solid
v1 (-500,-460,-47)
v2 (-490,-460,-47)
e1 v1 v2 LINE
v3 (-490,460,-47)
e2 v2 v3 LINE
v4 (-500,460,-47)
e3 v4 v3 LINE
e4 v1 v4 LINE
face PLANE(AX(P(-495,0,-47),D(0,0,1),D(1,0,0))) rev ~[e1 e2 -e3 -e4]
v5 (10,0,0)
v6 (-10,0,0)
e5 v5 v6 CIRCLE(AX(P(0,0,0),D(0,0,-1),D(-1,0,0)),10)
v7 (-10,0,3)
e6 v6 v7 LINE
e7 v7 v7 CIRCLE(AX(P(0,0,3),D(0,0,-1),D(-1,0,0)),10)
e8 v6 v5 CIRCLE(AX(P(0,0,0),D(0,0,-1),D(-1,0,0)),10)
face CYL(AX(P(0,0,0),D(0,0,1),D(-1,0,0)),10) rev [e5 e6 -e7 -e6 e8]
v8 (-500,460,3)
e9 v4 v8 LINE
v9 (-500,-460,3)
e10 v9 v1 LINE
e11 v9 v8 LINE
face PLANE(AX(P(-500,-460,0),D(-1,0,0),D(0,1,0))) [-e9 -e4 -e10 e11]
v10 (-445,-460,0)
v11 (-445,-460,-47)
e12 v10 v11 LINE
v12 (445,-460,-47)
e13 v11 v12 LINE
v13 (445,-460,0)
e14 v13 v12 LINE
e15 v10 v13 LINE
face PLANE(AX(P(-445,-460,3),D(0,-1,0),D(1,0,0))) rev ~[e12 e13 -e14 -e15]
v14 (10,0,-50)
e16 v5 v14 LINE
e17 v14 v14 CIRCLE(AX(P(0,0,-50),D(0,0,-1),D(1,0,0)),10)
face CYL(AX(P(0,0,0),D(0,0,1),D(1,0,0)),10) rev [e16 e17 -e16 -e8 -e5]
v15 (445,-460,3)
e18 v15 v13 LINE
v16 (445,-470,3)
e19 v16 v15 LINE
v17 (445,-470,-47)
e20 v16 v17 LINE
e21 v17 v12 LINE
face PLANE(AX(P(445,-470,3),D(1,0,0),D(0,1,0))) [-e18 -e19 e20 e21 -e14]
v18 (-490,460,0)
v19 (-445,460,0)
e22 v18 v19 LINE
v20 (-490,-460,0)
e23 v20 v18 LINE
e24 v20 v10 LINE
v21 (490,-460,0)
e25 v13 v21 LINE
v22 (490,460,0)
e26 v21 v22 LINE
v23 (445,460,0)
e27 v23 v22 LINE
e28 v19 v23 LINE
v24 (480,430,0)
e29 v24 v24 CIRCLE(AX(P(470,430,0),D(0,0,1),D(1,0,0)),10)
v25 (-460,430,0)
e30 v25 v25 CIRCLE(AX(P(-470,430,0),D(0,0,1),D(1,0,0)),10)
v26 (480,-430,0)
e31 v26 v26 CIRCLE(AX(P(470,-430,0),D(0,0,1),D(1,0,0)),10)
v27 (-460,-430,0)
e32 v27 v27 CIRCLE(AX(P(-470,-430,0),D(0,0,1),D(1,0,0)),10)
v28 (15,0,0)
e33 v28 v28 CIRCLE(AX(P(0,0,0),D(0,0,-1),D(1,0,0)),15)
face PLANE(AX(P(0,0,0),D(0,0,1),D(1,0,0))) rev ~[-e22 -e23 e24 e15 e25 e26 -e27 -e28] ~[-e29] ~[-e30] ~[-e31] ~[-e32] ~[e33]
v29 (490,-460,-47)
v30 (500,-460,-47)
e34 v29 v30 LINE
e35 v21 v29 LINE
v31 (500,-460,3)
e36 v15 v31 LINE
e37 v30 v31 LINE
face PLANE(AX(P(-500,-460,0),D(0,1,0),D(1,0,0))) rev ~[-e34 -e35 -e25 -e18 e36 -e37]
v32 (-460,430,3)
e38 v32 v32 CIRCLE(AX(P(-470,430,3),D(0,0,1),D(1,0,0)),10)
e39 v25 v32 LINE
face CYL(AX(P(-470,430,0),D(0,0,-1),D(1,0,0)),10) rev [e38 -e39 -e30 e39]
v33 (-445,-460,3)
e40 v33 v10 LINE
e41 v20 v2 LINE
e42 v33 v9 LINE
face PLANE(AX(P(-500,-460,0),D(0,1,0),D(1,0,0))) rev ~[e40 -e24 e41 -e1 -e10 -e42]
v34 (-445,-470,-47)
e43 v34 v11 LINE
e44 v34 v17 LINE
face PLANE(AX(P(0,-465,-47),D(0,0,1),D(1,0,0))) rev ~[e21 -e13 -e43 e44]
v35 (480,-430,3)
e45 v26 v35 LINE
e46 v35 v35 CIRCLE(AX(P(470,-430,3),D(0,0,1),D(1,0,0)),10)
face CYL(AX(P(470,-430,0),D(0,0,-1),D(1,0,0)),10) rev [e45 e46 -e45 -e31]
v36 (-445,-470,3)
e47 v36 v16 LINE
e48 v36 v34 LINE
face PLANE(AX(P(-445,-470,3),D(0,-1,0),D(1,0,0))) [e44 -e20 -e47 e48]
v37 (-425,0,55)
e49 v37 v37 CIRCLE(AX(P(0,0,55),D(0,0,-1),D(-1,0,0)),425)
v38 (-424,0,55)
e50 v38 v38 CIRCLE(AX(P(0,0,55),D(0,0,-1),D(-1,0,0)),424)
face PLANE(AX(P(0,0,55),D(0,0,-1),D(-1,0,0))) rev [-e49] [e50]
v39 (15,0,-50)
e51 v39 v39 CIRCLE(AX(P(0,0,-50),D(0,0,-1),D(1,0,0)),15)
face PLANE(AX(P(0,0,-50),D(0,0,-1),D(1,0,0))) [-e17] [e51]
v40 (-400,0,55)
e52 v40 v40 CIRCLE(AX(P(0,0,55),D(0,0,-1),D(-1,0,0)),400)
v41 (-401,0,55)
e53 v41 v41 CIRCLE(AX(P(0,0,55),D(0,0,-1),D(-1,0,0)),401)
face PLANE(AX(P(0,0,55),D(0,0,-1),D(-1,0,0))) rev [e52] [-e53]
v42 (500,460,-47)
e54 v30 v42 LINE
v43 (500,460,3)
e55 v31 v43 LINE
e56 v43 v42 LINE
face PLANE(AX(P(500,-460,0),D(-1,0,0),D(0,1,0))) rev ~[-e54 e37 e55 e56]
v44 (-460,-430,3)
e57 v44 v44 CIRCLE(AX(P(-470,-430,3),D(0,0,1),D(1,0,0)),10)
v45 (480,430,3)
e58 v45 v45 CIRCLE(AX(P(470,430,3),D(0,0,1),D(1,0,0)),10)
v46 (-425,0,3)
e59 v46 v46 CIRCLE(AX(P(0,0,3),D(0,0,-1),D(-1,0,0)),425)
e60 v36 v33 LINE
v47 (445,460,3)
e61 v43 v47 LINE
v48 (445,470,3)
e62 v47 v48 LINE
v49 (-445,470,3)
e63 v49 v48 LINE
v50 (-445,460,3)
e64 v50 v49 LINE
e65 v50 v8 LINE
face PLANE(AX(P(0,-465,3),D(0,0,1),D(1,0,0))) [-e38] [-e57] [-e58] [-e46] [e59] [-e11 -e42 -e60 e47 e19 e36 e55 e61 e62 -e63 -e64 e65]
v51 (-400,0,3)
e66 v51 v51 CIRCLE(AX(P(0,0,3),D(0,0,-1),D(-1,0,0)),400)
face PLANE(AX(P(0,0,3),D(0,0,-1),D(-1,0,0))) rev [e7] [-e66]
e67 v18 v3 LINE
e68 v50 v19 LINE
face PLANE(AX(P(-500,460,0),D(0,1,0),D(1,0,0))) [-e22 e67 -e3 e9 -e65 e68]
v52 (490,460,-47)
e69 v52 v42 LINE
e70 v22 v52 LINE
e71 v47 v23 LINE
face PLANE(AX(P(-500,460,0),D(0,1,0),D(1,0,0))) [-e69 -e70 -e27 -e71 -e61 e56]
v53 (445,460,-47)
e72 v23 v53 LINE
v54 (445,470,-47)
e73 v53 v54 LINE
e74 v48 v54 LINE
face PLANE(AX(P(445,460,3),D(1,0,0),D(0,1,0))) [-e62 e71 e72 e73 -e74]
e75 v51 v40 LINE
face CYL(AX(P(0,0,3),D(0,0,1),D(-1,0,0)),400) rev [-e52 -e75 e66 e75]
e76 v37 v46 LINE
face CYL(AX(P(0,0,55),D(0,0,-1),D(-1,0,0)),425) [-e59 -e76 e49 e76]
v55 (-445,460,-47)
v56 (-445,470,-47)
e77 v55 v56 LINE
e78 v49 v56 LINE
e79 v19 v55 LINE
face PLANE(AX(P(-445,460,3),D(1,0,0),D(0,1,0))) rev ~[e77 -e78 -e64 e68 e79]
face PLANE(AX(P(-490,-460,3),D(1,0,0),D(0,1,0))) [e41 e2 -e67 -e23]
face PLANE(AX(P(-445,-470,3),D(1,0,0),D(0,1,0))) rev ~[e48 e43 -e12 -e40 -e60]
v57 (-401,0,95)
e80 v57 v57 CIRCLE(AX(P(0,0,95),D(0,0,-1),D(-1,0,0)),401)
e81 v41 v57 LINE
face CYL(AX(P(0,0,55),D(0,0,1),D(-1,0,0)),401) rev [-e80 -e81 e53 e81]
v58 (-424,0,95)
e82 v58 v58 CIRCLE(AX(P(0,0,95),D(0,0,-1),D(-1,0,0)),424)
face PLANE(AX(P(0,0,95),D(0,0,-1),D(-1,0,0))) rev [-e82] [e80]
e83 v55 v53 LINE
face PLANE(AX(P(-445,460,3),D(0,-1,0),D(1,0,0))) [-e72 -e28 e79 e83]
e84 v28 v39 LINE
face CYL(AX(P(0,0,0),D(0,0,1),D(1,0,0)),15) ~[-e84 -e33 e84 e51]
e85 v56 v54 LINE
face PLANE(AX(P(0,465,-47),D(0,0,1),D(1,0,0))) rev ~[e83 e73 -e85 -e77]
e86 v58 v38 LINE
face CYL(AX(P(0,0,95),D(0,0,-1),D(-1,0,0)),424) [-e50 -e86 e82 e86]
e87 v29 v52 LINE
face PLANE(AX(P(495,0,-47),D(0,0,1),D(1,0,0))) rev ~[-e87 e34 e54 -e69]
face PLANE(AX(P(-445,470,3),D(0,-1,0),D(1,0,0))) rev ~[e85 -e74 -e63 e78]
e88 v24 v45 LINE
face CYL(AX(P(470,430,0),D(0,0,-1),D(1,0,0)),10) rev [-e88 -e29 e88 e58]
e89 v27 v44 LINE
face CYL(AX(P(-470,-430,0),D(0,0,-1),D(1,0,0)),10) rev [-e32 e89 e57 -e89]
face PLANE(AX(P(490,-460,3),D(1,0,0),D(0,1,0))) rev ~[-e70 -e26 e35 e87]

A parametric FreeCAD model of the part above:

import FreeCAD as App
import Part
import Sketcher
Q = App.Units.Quantity

doc = App.newDocument("Part")
body = doc.addObject("PartDesign::Body", "Body")

sketch1 = doc.addObject("Sketcher::SketchObject", "Sketch")
body.addObject(sketch1)
sketch1.AttachmentSupport = (doc.XZ_Plane, [""])
sketch1.MapMode = "FlatFace"
sketch1.addGeometry(Part.LineSegment(App.Vector(-400, 3, 0), App.Vector(-400, 55, 0)), False)
sketch1.addGeometry(Part.LineSegment(App.Vector(-400, 55, 0), App.Vector(-401, 55, 0)), False)
sketch1.addGeometry(Part.LineSegment(App.Vector(-401, 55, 0), App.Vector(-401, 95, 0)), False)
sketch1.addGeometry(Part.LineSegment(App.Vector(-401, 95, 0), App.Vector(-424, 95, 0)), False)
sketch1.addGeometry(Part.LineSegment(App.Vector(-424, 95, 0), App.Vector(-424, 55, 0)), False)
sketch1.addGeometry(Part.LineSegment(App.Vector(-424, 55, 0), App.Vector(-425, 55, 0)), False)
sketch1.addGeometry(Part.LineSegment(App.Vector(-425, 55, 0), App.Vector(-425, 0, 0)), False)
sketch1.addGeometry(Part.LineSegment(App.Vector(-425, 0, 0), App.Vector(-10, 0, 0)), False)
sketch1.addGeometry(Part.LineSegment(App.Vector(-10, 0, 0), App.Vector(-10, 3, 0)), False)
sketch1.addGeometry(Part.LineSegment(App.Vector(-10, 3, 0), App.Vector(-400, 3, 0)), False)
sketch1.addConstraint(Sketcher.Constraint("Coincident", 0, 2, 1, 1))
sketch1.addConstraint(Sketcher.Constraint("Coincident", 1, 2, 2, 1))
sketch1.addConstraint(Sketcher.Constraint("Coincident", 2, 2, 3, 1))
sketch1.addConstraint(Sketcher.Constraint("Coincident", 3, 2, 4, 1))
sketch1.addConstraint(Sketcher.Constraint("Coincident", 4, 2, 5, 1))
sketch1.addConstraint(Sketcher.Constraint("Coincident", 5, 2, 6, 1))
sketch1.addConstraint(Sketcher.Constraint("Coincident", 6, 2, 7, 1))
sketch1.addConstraint(Sketcher.Constraint("Coincident", 7, 2, 8, 1))
sketch1.addConstraint(Sketcher.Constraint("Coincident", 8, 2, 9, 1))
sketch1.addConstraint(Sketcher.Constraint("Coincident", 9, 2, 0, 1))
sketch1.addConstraint(Sketcher.Constraint("Vertical", 0))
sketch1.addConstraint(Sketcher.Constraint("Horizontal", 1))
sketch1.addConstraint(Sketcher.Constraint("Vertical", 2))
sketch1.addConstraint(Sketcher.Constraint("Horizontal", 3))
sketch1.addConstraint(Sketcher.Constraint("Vertical", 4))
sketch1.addConstraint(Sketcher.Constraint("Horizontal", 5))
sketch1.addConstraint(Sketcher.Constraint("Vertical", 6))
sketch1.addConstraint(Sketcher.Constraint("Horizontal", 7))
sketch1.addConstraint(Sketcher.Constraint("Vertical", 8))
sketch1.addConstraint(Sketcher.Constraint("Horizontal", 9))
sketch1.addConstraint(Sketcher.Constraint("PointOnObject", 6, 2, -1))
sketch1.addConstraint(Sketcher.Constraint("Horizontal", 1, 2, 4, 2))
sketch1.addConstraint(Sketcher.Constraint("Equal", 1, 5))
sketch1.addConstraint(Sketcher.Constraint("DistanceX", 1, 2, 1, 1, Q("1 mm")))
sketch1.addConstraint(Sketcher.Constraint("DistanceX", 3, 2, 3, 1, Q("23 mm")))
sketch1.addConstraint(Sketcher.Constraint("DistanceX", 7, 1, 7, 2, Q("415 mm")))
sketch1.addConstraint(Sketcher.Constraint("DistanceY", 0, 1, 0, 2, Q("52 mm")))
sketch1.addConstraint(Sketcher.Constraint("DistanceY", 2, 1, 2, 2, Q("40 mm")))
sketch1.addConstraint(Sketcher.Constraint("DistanceY", 6, 2, 6, 1, Q("55 mm")))
sketch1.addConstraint(Sketcher.Constraint("DistanceX", 0, 2, -1, 1, Q("400 mm")))
revolution = doc.addObject("PartDesign::Revolution", "Revolution")
body.addObject(revolution)
revolution.Profile = sketch1
revolution.ReferenceAxis = (sketch1, ["V_Axis"])
revolution.Angle = 360

sketch2 = doc.addObject("Sketcher::SketchObject", "Sketch001")
body.addObject(sketch2)
sketch2.AttachmentSupport = (doc.XY_Plane, [""])
sketch2.MapMode = "FlatFace"
sketch2.addGeometry(Part.LineSegment(App.Vector(-500, 460, 0), App.Vector(-500, -460, 0)), False)
sketch2.addGeometry(Part.LineSegment(App.Vector(-500, -460, 0), App.Vector(500, -460, 0)), False)
sketch2.addGeometry(Part.LineSegment(App.Vector(500, -460, 0), App.Vector(500, 460, 0)), False)
sketch2.addGeometry(Part.LineSegment(App.Vector(500, 460, 0), App.Vector(-500, 460, 0)), False)
sketch2.addGeometry(Part.Circle(App.Vector(-470, -430, 0), App.Vector(0, 0, 1), 10), False)
sketch2.addGeometry(Part.Circle(App.Vector(470, -430, 0), App.Vector(0, 0, 1), 10), False)
sketch2.addGeometry(Part.Circle(App.Vector(-470, 430, 0), App.Vector(0, 0, 1), 10), False)
sketch2.addGeometry(Part.Circle(App.Vector(0, 0, 0), App.Vector(0, 0, 1), 401), False)
sketch2.addGeometry(Part.Circle(App.Vector(470, 430, 0), App.Vector(0, 0, 1), 10), False)
sketch2.addConstraint(Sketcher.Constraint("Coincident", 0, 2, 1, 1))
sketch2.addConstraint(Sketcher.Constraint("Coincident", 1, 2, 2, 1))
sketch2.addConstraint(Sketcher.Constraint("Coincident", 2, 2, 3, 1))
sketch2.addConstraint(Sketcher.Constraint("Coincident", 3, 2, 0, 1))
sketch2.addConstraint(Sketcher.Constraint("Vertical", 0))
sketch2.addConstraint(Sketcher.Constraint("Horizontal", 1))
sketch2.addConstraint(Sketcher.Constraint("Vertical", 2))
sketch2.addConstraint(Sketcher.Constraint("Horizontal", 3))
sketch2.addConstraint(Sketcher.Constraint("Coincident", 7, 3, -1, 1))
sketch2.addConstraint(Sketcher.Constraint("Equal", 4, 5))
sketch2.addConstraint(Sketcher.Constraint("Equal", 5, 6))
sketch2.addConstraint(Sketcher.Constraint("Equal", 6, 8))
sketch2.addConstraint(Sketcher.Constraint("Symmetric", 5, 3, 6, 3, -1, 1))
sketch2.addConstraint(Sketcher.Constraint("Symmetric", 4, 3, 8, 3, -1, 1))
sketch2.addConstraint(Sketcher.Constraint("Symmetric", 0, 2, 2, 2, -1, 1))
sketch2.addConstraint(Sketcher.Constraint("Symmetric", 4, 3, 5, 3, -2))
sketch2.addConstraint(Sketcher.Constraint("Diameter", 4, Q("20 mm")))
sketch2.addConstraint(Sketcher.Constraint("Diameter", 7, Q("802 mm")))
sketch2.addConstraint(Sketcher.Constraint("DistanceX", 1, 1, 1, 2, Q("1000 mm")))
sketch2.addConstraint(Sketcher.Constraint("DistanceY", 0, 2, 0, 1, Q("920 mm")))
sketch2.addConstraint(Sketcher.Constraint("DistanceX", 4, 3, -1, 1, Q("470 mm")))
sketch2.addConstraint(Sketcher.Constraint("DistanceY", 4, 3, -1, 1, Q("430 mm")))
pad1 = doc.addObject("PartDesign::Pad", "Pad")
body.addObject(pad1)
pad1.Profile = sketch2
pad1.Length = 3

sketch3 = doc.addObject("Sketcher::SketchObject", "Sketch002")
body.addObject(sketch3)
sketch3.AttachmentSupport = (doc.XY_Plane, [""])
sketch3.MapMode = "FlatFace"
sketch3.AttachmentOffset = App.Placement(App.Vector(0, 0, 3), App.Rotation())
sketch3.addGeometry(Part.LineSegment(App.Vector(-445, -460, 0), App.Vector(-445, -470, 0)), False)
sketch3.addGeometry(Part.LineSegment(App.Vector(-445, -470, 0), App.Vector(445, -470, 0)), False)
sketch3.addGeometry(Part.LineSegment(App.Vector(445, -470, 0), App.Vector(445, -460, 0)), False)
sketch3.addGeometry(Part.LineSegment(App.Vector(445, -460, 0), App.Vector(-445, -460, 0)), False)
sketch3.addGeometry(Part.LineSegment(App.Vector(-500, 460, 0), App.Vector(-500, -460, 0)), False)
sketch3.addGeometry(Part.LineSegment(App.Vector(-500, -460, 0), App.Vector(-490, -460, 0)), False)
sketch3.addGeometry(Part.LineSegment(App.Vector(-490, -460, 0), App.Vector(-490, 460, 0)), False)
sketch3.addGeometry(Part.LineSegment(App.Vector(-490, 460, 0), App.Vector(-500, 460, 0)), False)
sketch3.addGeometry(Part.LineSegment(App.Vector(-445, 470, 0), App.Vector(-445, 460, 0)), False)
sketch3.addGeometry(Part.LineSegment(App.Vector(-445, 460, 0), App.Vector(445, 460, 0)), False)
sketch3.addGeometry(Part.LineSegment(App.Vector(445, 460, 0), App.Vector(445, 470, 0)), False)
sketch3.addGeometry(Part.LineSegment(App.Vector(445, 470, 0), App.Vector(-445, 470, 0)), False)
sketch3.addGeometry(Part.LineSegment(App.Vector(490, 460, 0), App.Vector(490, -460, 0)), False)
sketch3.addGeometry(Part.LineSegment(App.Vector(490, -460, 0), App.Vector(500, -460, 0)), False)
sketch3.addGeometry(Part.LineSegment(App.Vector(500, -460, 0), App.Vector(500, 460, 0)), False)
sketch3.addGeometry(Part.LineSegment(App.Vector(500, 460, 0), App.Vector(490, 460, 0)), False)
sketch3.addConstraint(Sketcher.Constraint("Coincident", 0, 2, 1, 1))
sketch3.addConstraint(Sketcher.Constraint("Coincident", 1, 2, 2, 1))
sketch3.addConstraint(Sketcher.Constraint("Coincident", 2, 2, 3, 1))
sketch3.addConstraint(Sketcher.Constraint("Coincident", 3, 2, 0, 1))
sketch3.addConstraint(Sketcher.Constraint("Coincident", 4, 2, 5, 1))
sketch3.addConstraint(Sketcher.Constraint("Coincident", 5, 2, 6, 1))
sketch3.addConstraint(Sketcher.Constraint("Coincident", 6, 2, 7, 1))
sketch3.addConstraint(Sketcher.Constraint("Coincident", 7, 2, 4, 1))
sketch3.addConstraint(Sketcher.Constraint("Coincident", 8, 2, 9, 1))
sketch3.addConstraint(Sketcher.Constraint("Coincident", 9, 2, 10, 1))
sketch3.addConstraint(Sketcher.Constraint("Coincident", 10, 2, 11, 1))
sketch3.addConstraint(Sketcher.Constraint("Coincident", 11, 2, 8, 1))
sketch3.addConstraint(Sketcher.Constraint("Coincident", 12, 2, 13, 1))
sketch3.addConstraint(Sketcher.Constraint("Coincident", 13, 2, 14, 1))
sketch3.addConstraint(Sketcher.Constraint("Coincident", 14, 2, 15, 1))
sketch3.addConstraint(Sketcher.Constraint("Coincident", 15, 2, 12, 1))
sketch3.addConstraint(Sketcher.Constraint("Vertical", 0))
sketch3.addConstraint(Sketcher.Constraint("Horizontal", 1))
sketch3.addConstraint(Sketcher.Constraint("Vertical", 2))
sketch3.addConstraint(Sketcher.Constraint("Horizontal", 3))
sketch3.addConstraint(Sketcher.Constraint("Vertical", 4))
sketch3.addConstraint(Sketcher.Constraint("Horizontal", 5))
sketch3.addConstraint(Sketcher.Constraint("Vertical", 6))
sketch3.addConstraint(Sketcher.Constraint("Horizontal", 7))
sketch3.addConstraint(Sketcher.Constraint("Vertical", 8))
sketch3.addConstraint(Sketcher.Constraint("Horizontal", 9))
sketch3.addConstraint(Sketcher.Constraint("Vertical", 10))
sketch3.addConstraint(Sketcher.Constraint("Horizontal", 11))
sketch3.addConstraint(Sketcher.Constraint("Vertical", 12))
sketch3.addConstraint(Sketcher.Constraint("Horizontal", 13))
sketch3.addConstraint(Sketcher.Constraint("Vertical", 14))
sketch3.addConstraint(Sketcher.Constraint("Horizontal", 15))
sketch3.addConstraint(Sketcher.Constraint("Symmetric", 2, 2, 8, 2, -1, 1))
sketch3.addConstraint(Sketcher.Constraint("Symmetric", 0, 2, 10, 2, -1, 1))
sketch3.addConstraint(Sketcher.Constraint("Symmetric", 6, 2, 12, 2, -1, 1))
sketch3.addConstraint(Sketcher.Constraint("Symmetric", 4, 2, 14, 2, -1, 1))
sketch3.addConstraint(Sketcher.Constraint("Horizontal", 3, 2, 4, 2))
sketch3.addConstraint(Sketcher.Constraint("Horizontal", 7, 2, 8, 2))
sketch3.addConstraint(Sketcher.Constraint("Vertical", 3, 2, 8, 2))
sketch3.addConstraint(Sketcher.Constraint("Equal", 15, 0))
sketch3.addConstraint(Sketcher.Constraint("DistanceX", 1, 1, 1, 2, Q("890 mm")))
sketch3.addConstraint(Sketcher.Constraint("DistanceX", 5, 1, 5, 2, Q("10 mm")))
sketch3.addConstraint(Sketcher.Constraint("DistanceY", 4, 2, 4, 1, Q("920 mm")))
sketch3.addConstraint(Sketcher.Constraint("DistanceX", 4, 2, -1, 1, Q("500 mm")))
pad2 = doc.addObject("PartDesign::Pad", "Pad001")
body.addObject(pad2)
pad2.Profile = sketch3
pad2.Length = 50
pad2.Reversed = True

sketch4 = doc.addObject("Sketcher::SketchObject", "Sketch003")
body.addObject(sketch4)
sketch4.AttachmentSupport = (doc.XY_Plane, [""])
sketch4.MapMode = "FlatFace"
sketch4.addGeometry(Part.Circle(App.Vector(0, 0, 0), App.Vector(0, 0, 1), 15), False)
sketch4.addGeometry(Part.Circle(App.Vector(0, 0, 0), App.Vector(0, 0, 1), 10), False)
sketch4.addConstraint(Sketcher.Constraint("Coincident", 0, 3, -1, 1))
sketch4.addConstraint(Sketcher.Constraint("Coincident", 1, 3, -1, 1))
sketch4.addConstraint(Sketcher.Constraint("Diameter", 0, Q("30 mm")))
sketch4.addConstraint(Sketcher.Constraint("Diameter", 1, Q("20 mm")))
pad3 = doc.addObject("PartDesign::Pad", "Pad002")
body.addObject(pad3)
pad3.Profile = sketch4
pad3.Length = 50
pad3.Reversed = True

doc.recompute()
